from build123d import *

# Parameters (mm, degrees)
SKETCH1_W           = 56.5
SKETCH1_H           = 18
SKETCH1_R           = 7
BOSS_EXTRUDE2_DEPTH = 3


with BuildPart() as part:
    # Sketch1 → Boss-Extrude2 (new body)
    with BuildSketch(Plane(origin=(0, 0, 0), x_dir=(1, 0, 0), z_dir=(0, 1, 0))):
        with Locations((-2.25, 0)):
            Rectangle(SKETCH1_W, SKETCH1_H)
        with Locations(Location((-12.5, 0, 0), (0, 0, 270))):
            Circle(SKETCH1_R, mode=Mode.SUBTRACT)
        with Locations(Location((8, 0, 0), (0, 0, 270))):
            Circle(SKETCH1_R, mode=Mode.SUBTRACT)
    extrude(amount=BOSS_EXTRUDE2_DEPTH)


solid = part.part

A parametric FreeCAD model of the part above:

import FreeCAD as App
import Part
import Sketcher

V = App.Vector

doc = App.newDocument("Part")
body = doc.addObject("PartDesign::Body", "Body")

# Sketch on XZ plane
sketch1 = body.newObject("Sketcher::SketchObject", "Sketch")
sketch1.AttachmentSupport = (doc.getObject("XZ_Plane"), [""])
sketch1.MapMode = "FlatFace"
sketch1.addGeometry(Part.LineSegment(V(-30, -9, 0), V(-30, 9, 0)), False)
sketch1.addGeometry(Part.LineSegment(V(-30, 9, 0), V(26, 9, 0)), False)
sketch1.addGeometry(Part.LineSegment(V(26, 9, 0), V(26, -9, 0)), False)
sketch1.addGeometry(Part.LineSegment(V(26, -9, 0), V(-30, -9, 0)), False)
sketch1.addGeometry(Part.Circle(V(-12, 0, 0), V(0, 0, 1), 7), False)
sketch1.addGeometry(Part.Circle(V(8, 0, 0), V(0, 0, 1), 7), False)
sketch1.addConstraint(Sketcher.Constraint("Coincident", 0, 2, 1, 1))
sketch1.addConstraint(Sketcher.Constraint("Coincident", 1, 2, 2, 1))
sketch1.addConstraint(Sketcher.Constraint("Coincident", 2, 2, 3, 1))
sketch1.addConstraint(Sketcher.Constraint("Coincident", 3, 2, 0, 1))
sketch1.addConstraint(Sketcher.Constraint("Vertical", 0))
sketch1.addConstraint(Sketcher.Constraint("Horizontal", 1))
sketch1.addConstraint(Sketcher.Constraint("Vertical", 2))
sketch1.addConstraint(Sketcher.Constraint("Horizontal", 3))
sketch1.addConstraint(Sketcher.Constraint("Equal", 4, 5))
sketch1.addConstraint(Sketcher.Constraint("PointOnObject", 4, 3, -1))
sketch1.addConstraint(Sketcher.Constraint("PointOnObject", 5, 3, -1))
sketch1.addConstraint(Sketcher.Constraint("Diameter", 4, 14.0))
sketch1.addConstraint(Sketcher.Constraint("DistanceY", 0, 1, 0, 2, 18.0))
sketch1.addConstraint(Sketcher.Constraint("DistanceX", 1, 1, 1, 2, 56.5))
sketch1.addConstraint(Sketcher.Constraint("DistanceX", -1, 1, 5, 3, 8.0))
sketch1.addConstraint(Sketcher.Constraint("DistanceY", -1, 1, 0, 2, 9.0))
sketch1.addConstraint(Sketcher.Constraint("DistanceX", -1, 1, 1, 2, 26.0))
sketch1.addConstraint(Sketcher.Constraint("DistanceX", 0, 2, 4, 3, 18.0))
pad1 = body.newObject("PartDesign::Pad", "Pad")
pad1.Profile = sketch1
pad1.Length = 3
pad1.Reversed = True

doc.recompute()
